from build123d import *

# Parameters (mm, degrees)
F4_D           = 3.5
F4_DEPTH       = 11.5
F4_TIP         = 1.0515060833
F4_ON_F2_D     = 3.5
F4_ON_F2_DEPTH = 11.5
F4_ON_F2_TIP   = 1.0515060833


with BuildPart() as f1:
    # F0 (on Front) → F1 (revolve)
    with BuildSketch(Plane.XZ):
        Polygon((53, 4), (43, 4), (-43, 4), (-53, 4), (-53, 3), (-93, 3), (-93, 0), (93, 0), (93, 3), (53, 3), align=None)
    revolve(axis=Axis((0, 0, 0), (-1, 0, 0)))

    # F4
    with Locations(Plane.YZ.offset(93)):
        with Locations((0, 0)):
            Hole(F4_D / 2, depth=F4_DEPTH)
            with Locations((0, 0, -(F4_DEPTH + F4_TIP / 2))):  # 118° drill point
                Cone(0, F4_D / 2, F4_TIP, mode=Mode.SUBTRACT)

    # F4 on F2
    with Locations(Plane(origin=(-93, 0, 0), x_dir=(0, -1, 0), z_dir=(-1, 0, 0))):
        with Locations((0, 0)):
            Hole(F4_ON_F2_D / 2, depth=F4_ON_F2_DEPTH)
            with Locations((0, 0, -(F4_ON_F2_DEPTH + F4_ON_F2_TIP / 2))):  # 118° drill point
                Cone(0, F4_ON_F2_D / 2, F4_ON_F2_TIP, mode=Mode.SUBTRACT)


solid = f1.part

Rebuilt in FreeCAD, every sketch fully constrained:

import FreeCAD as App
import Part
import Sketcher
Q = App.Units.Quantity


def add_polygon(sketch, points):
    """Adds a closed chain of lines whose ends are joined by coincident constraints."""
    first, n = sketch.GeometryCount, len(points)
    for a, b in zip(points, points[1:] + points[:1]):
        sketch.addGeometry(Part.LineSegment(App.Vector(*a, 0), App.Vector(*b, 0)), False)
    for i in range(n):
        sketch.addConstraint(Sketcher.Constraint("Coincident", first + i, 2, first + (i + 1) % n, 1))

doc = App.newDocument("Part")
body = doc.addObject("PartDesign::Body", "Body")

# Sketch on XZ plane
sketch1 = body.newObject("Sketcher::SketchObject", "Sketch")
sketch1.AttachmentSupport = (doc.getObject("XZ_Plane"), [""])
sketch1.MapMode = "FlatFace"
add_polygon(sketch1, [(53, 4), (-53, 4), (-53, 3), (-93, 3), (-93, 0), (93, 0), (93, 3), (53, 3)])  # lines 0-7
sketch1.addConstraint(Sketcher.Constraint("Horizontal", 0))
sketch1.addConstraint(Sketcher.Constraint("Vertical", 1))
sketch1.addConstraint(Sketcher.Constraint("Horizontal", 2))
sketch1.addConstraint(Sketcher.Constraint("Vertical", 3))
sketch1.addConstraint(Sketcher.Constraint("Horizontal", 4))
sketch1.addConstraint(Sketcher.Constraint("Vertical", 5))
sketch1.addConstraint(Sketcher.Constraint("Horizontal", 6))
sketch1.addConstraint(Sketcher.Constraint("Vertical", 7))
sketch1.addConstraint(Sketcher.Constraint("Symmetric", 3, 2, 4, 2, -1, 1))
sketch1.addConstraint(Sketcher.Constraint("Symmetric", 1, 2, 6, 2, -2))
sketch1.addConstraint(Sketcher.Constraint("DistanceX", 0, 2, 0, 1, Q("106 mm")))
sketch1.addConstraint(Sketcher.Constraint("DistanceX", 2, 2, 2, 1, Q("40 mm")))
sketch1.addConstraint(Sketcher.Constraint("DistanceY", 1, 2, 1, 1, Q("1 mm")))
sketch1.addConstraint(Sketcher.Constraint("DistanceY", 3, 2, 3, 1, Q("3 mm")))
revolution = body.newObject("PartDesign::Revolution", "Revolution")
revolution.Profile = sketch1
revolution.ReferenceAxis = (sketch1, ["H_Axis"])
revolution.Angle = 360

# Sketch on YZ plane
sketch2 = body.newObject("Sketcher::SketchObject", "Sketch001")
sketch2.AttachmentSupport = (doc.getObject("YZ_Plane"), [""])
sketch2.MapMode = "FlatFace"
sketch2.AttachmentOffset = App.Placement(App.Vector(0, 0, 93), App.Rotation())
sketch2.addGeometry(Part.Circle(App.Vector(0, 0, 0), App.Vector(0, 0, 1), 1.75), False)
sketch2.addConstraint(Sketcher.Constraint("Coincident", 0, 3, -1, 1))
sketch2.addConstraint(Sketcher.Constraint("Diameter", 0, Q("3.5 mm")))
doc.recompute()
hole = body.newObject("PartDesign::Hole", "Hole")
hole.Profile = sketch2
hole.ThreadType = "None"
hole.Diameter = 3.5
hole.DepthType = "Dimension"
hole.Depth = 11.5
hole.DrillPoint = "Angled"
hole.DrillPointAngle = 118

# Sketch on YZ plane
sketch3 = body.newObject("Sketcher::SketchObject", "Sketch002")
sketch3.AttachmentSupport = (doc.getObject("YZ_Plane"), [""])
sketch3.MapMode = "FlatFace"
sketch3.AttachmentOffset = App.Placement(App.Vector(0, 0, -93), App.Rotation())
sketch3.addGeometry(Part.Circle(App.Vector(0, 0, 0), App.Vector(0, 0, 1), 1.75), False)
sketch3.addConstraint(Sketcher.Constraint("Coincident", 0, 3, -1, 1))
sketch3.addConstraint(Sketcher.Constraint("Diameter", 0, Q("3.5 mm")))
doc.recompute()
hole2 = body.newObject("PartDesign::Hole", "Hole001")
hole2.Profile = sketch3
hole2.ThreadType = "None"
hole2.Diameter = 3.5
hole2.DepthType = "Dimension"
hole2.Depth = 11.5
hole2.DrillPoint = "Angled"
hole2.DrillPointAngle = 118
hole2.Reversed = True

doc.recompute()
